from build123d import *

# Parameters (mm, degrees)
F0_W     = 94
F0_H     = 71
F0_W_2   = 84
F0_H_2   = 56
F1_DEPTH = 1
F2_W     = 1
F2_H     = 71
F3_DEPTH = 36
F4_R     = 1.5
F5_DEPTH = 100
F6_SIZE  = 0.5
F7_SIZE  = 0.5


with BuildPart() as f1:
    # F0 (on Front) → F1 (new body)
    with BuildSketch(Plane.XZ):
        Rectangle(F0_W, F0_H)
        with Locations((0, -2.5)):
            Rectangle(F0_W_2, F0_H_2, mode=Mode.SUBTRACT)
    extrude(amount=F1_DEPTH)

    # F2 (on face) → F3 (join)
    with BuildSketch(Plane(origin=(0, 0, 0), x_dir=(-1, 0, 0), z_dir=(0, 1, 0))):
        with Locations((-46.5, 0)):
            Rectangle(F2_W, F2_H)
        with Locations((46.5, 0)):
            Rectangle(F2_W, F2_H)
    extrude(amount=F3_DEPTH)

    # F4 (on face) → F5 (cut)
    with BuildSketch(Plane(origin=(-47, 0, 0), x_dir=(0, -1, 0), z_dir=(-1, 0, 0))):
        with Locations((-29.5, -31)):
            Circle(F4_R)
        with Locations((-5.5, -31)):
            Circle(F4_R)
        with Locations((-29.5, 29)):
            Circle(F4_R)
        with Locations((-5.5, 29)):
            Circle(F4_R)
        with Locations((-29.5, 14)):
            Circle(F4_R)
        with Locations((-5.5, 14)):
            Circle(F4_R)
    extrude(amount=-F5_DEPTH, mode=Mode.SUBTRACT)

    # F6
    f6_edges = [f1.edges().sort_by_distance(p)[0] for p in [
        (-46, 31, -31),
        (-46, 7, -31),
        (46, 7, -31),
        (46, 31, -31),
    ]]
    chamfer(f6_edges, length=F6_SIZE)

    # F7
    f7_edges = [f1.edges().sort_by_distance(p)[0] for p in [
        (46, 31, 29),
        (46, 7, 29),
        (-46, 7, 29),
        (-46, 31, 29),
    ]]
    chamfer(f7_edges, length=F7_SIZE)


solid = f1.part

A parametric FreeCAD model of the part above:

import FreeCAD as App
import Part
import Sketcher
from FreeCAD import Vector


def edges_at(feature, points):
    """Names of the edges that pass closest to the given points."""
    edges = feature.Shape.Edges
    near = lambda p: min(range(len(edges)), key=lambda i: edges[i].distToShape(Part.Vertex(*p))[0])
    return sorted({f"Edge{near(p) + 1}" for p in points})


def add_polygon(sketch, points):
    """Adds a closed chain of lines whose ends are joined by coincident constraints."""
    first, n = sketch.GeometryCount, len(points)
    for a, b in zip(points, points[1:] + points[:1]):
        sketch.addGeometry(Part.LineSegment(App.Vector(*a, 0), App.Vector(*b, 0)), False)
    for i in range(n):
        sketch.addConstraint(Sketcher.Constraint("Coincident", first + i, 2, first + (i + 1) % n, 1))

doc = App.newDocument("Part")
body = doc.addObject("PartDesign::Body", "Body")

# Sketch on XZ plane
sketch1 = body.newObject("Sketcher::SketchObject", "Sketch")
sketch1.AttachmentSupport = (doc.getObject("XZ_Plane"), [""])
sketch1.MapMode = "FlatFace"
add_polygon(sketch1, [(-47, 36), (-47, -36), (47, -36), (47, 36)])  # lines 0-3
add_polygon(sketch1, [(42, -30), (-42, -30), (-42, 26), (42, 26)])  # lines 4-7
sketch1.addConstraint(Sketcher.Constraint("Vertical", 0))
sketch1.addConstraint(Sketcher.Constraint("Horizontal", 1))
sketch1.addConstraint(Sketcher.Constraint("Vertical", 2))
sketch1.addConstraint(Sketcher.Constraint("Horizontal", 3))
sketch1.addConstraint(Sketcher.Constraint("Horizontal", 4))
sketch1.addConstraint(Sketcher.Constraint("Vertical", 5))
sketch1.addConstraint(Sketcher.Constraint("Horizontal", 6))
sketch1.addConstraint(Sketcher.Constraint("Vertical", 7))
sketch1.addConstraint(Sketcher.Constraint("Symmetric", 0, 2, 2, 2, -1, 1))
sketch1.addConstraint(Sketcher.Constraint("DistanceX", 1, 1, 1, 2, 94.0))
sketch1.addConstraint(Sketcher.Constraint("DistanceX", 4, 2, 4, 1, 84.0))
sketch1.addConstraint(Sketcher.Constraint("DistanceY", 0, 2, 0, 1, 71.0))
sketch1.addConstraint(Sketcher.Constraint("DistanceY", 5, 1, 5, 2, 56.0))
sketch1.addConstraint(Sketcher.Constraint("DistanceX", 4, 2, -1, 1, 42.0))
sketch1.addConstraint(Sketcher.Constraint("DistanceY", 0, 2, 4, 2, 5.0))
pad1 = body.newObject("PartDesign::Pad", "Pad")
pad1.Profile = sketch1
pad1.Length = 1

# Sketch on XZ plane
sketch2 = body.newObject("Sketcher::SketchObject", "Sketch001")
sketch2.AttachmentSupport = (doc.getObject("XZ_Plane"), [""])
sketch2.MapMode = "FlatFace"
add_polygon(sketch2, [(47, 35.5), (47, -35.5), (46, -35.5), (46, 35.5)])  # lines 0-3
add_polygon(sketch2, [(-46, 35.5), (-46, -35.5), (-47, -35.5), (-47, 35.5)])  # lines 4-7
sketch2.addConstraint(Sketcher.Constraint("Vertical", 0))
sketch2.addConstraint(Sketcher.Constraint("Horizontal", 1))
sketch2.addConstraint(Sketcher.Constraint("Vertical", 2))
sketch2.addConstraint(Sketcher.Constraint("Horizontal", 3))
sketch2.addConstraint(Sketcher.Constraint("Vertical", 4))
sketch2.addConstraint(Sketcher.Constraint("Horizontal", 5))
sketch2.addConstraint(Sketcher.Constraint("Vertical", 6))
sketch2.addConstraint(Sketcher.Constraint("Horizontal", 7))
sketch2.addConstraint(Sketcher.Constraint("Symmetric", 2, 2, 4, 2, -1, 1))
sketch2.addConstraint(Sketcher.Constraint("Symmetric", 0, 2, 6, 2, -1, 1))
sketch2.addConstraint(Sketcher.Constraint("Horizontal", 1, 2, 4, 2))
sketch2.addConstraint(Sketcher.Constraint("DistanceX", 1, 2, 1, 1, 1.0))
sketch2.addConstraint(Sketcher.Constraint("DistanceY", 0, 2, 0, 1, 71.0))
sketch2.addConstraint(Sketcher.Constraint("DistanceX", -1, 1, 0, 2, 47.0))
pad2 = body.newObject("PartDesign::Pad", "Pad001")
pad2.Profile = sketch2
pad2.Length = 36
pad2.Reversed = True

# Sketch on YZ plane
sketch3 = body.newObject("Sketcher::SketchObject", "Sketch002")
sketch3.AttachmentSupport = (doc.getObject("YZ_Plane"), [""])
sketch3.MapMode = "FlatFace"
sketch3.AttachmentOffset = App.Placement(Vector(0, 0, -47), App.Rotation())
sketch3.addGeometry(Part.Circle(Vector(29.5, -31, 0), Vector(0, 0, 1), 1.5), False)
sketch3.addGeometry(Part.Circle(Vector(5.5, -31, 0), Vector(0, 0, 1), 1.5), False)
sketch3.addGeometry(Part.Circle(Vector(29.5, 29, 0), Vector(0, 0, 1), 1.5), False)
sketch3.addGeometry(Part.Circle(Vector(5.5, 29, 0), Vector(0, 0, 1), 1.5), False)
sketch3.addGeometry(Part.Circle(Vector(29.5, 14, 0), Vector(0, 0, 1), 1.5), False)
sketch3.addGeometry(Part.Circle(Vector(5.5, 14, 0), Vector(0, 0, 1), 1.5), False)
sketch3.addConstraint(Sketcher.Constraint("Equal", 0, 1))
sketch3.addConstraint(Sketcher.Constraint("Equal", 1, 2))
sketch3.addConstraint(Sketcher.Constraint("Equal", 2, 3))
sketch3.addConstraint(Sketcher.Constraint("Equal", 3, 4))
sketch3.addConstraint(Sketcher.Constraint("Equal", 4, 5))
sketch3.addConstraint(Sketcher.Constraint("Horizontal", 0, 3, 1, 3))
sketch3.addConstraint(Sketcher.Constraint("Horizontal", 2, 3, 3, 3))
sketch3.addConstraint(Sketcher.Constraint("Horizontal", 4, 3, 5, 3))
sketch3.addConstraint(Sketcher.Constraint("Vertical", 0, 3, 2, 3))
sketch3.addConstraint(Sketcher.Constraint("Vertical", 1, 3, 3, 3))
sketch3.addConstraint(Sketcher.Constraint("Vertical", 2, 3, 4, 3))
sketch3.addConstraint(Sketcher.Constraint("Vertical", 3, 3, 5, 3))
sketch3.addConstraint(Sketcher.Constraint("Diameter", 0, 3.0))
sketch3.addConstraint(Sketcher.Constraint("DistanceY", 0, 3, -1, 1, 31.0))
sketch3.addConstraint(Sketcher.Constraint("DistanceY", -1, 1, 2, 3, 29.0))
sketch3.addConstraint(Sketcher.Constraint("DistanceY", -1, 1, 4, 3, 14.0))
sketch3.addConstraint(Sketcher.Constraint("DistanceX", 1, 3, 0, 3, 24.0))
sketch3.addConstraint(Sketcher.Constraint("DistanceX", -1, 1, 0, 3, 29.5))
pocket1 = body.newObject("PartDesign::Pocket", "Pocket")
pocket1.Profile = sketch3
pocket1.Length = 100
pocket1.Reversed = True
doc.recompute()

chamfer = body.newObject("PartDesign::Chamfer", "Chamfer")
chamfer.Base = (pocket1, edges_at(pocket1, [
    (-46, 31, -31),
    (-46, 7, -31),
    (46, 7, -31),
    (46, 31, -31),
]))
chamfer.Size = 0.5
doc.recompute()

chamfer2 = body.newObject("PartDesign::Chamfer", "Chamfer001")
chamfer2.Base = (chamfer, edges_at(chamfer, [
    (46, 31, 29),
    (46, 7, 29),
    (-46, 7, 29),
    (-46, 31, 29),
]))
chamfer2.Size = 0.5

doc.recompute()
